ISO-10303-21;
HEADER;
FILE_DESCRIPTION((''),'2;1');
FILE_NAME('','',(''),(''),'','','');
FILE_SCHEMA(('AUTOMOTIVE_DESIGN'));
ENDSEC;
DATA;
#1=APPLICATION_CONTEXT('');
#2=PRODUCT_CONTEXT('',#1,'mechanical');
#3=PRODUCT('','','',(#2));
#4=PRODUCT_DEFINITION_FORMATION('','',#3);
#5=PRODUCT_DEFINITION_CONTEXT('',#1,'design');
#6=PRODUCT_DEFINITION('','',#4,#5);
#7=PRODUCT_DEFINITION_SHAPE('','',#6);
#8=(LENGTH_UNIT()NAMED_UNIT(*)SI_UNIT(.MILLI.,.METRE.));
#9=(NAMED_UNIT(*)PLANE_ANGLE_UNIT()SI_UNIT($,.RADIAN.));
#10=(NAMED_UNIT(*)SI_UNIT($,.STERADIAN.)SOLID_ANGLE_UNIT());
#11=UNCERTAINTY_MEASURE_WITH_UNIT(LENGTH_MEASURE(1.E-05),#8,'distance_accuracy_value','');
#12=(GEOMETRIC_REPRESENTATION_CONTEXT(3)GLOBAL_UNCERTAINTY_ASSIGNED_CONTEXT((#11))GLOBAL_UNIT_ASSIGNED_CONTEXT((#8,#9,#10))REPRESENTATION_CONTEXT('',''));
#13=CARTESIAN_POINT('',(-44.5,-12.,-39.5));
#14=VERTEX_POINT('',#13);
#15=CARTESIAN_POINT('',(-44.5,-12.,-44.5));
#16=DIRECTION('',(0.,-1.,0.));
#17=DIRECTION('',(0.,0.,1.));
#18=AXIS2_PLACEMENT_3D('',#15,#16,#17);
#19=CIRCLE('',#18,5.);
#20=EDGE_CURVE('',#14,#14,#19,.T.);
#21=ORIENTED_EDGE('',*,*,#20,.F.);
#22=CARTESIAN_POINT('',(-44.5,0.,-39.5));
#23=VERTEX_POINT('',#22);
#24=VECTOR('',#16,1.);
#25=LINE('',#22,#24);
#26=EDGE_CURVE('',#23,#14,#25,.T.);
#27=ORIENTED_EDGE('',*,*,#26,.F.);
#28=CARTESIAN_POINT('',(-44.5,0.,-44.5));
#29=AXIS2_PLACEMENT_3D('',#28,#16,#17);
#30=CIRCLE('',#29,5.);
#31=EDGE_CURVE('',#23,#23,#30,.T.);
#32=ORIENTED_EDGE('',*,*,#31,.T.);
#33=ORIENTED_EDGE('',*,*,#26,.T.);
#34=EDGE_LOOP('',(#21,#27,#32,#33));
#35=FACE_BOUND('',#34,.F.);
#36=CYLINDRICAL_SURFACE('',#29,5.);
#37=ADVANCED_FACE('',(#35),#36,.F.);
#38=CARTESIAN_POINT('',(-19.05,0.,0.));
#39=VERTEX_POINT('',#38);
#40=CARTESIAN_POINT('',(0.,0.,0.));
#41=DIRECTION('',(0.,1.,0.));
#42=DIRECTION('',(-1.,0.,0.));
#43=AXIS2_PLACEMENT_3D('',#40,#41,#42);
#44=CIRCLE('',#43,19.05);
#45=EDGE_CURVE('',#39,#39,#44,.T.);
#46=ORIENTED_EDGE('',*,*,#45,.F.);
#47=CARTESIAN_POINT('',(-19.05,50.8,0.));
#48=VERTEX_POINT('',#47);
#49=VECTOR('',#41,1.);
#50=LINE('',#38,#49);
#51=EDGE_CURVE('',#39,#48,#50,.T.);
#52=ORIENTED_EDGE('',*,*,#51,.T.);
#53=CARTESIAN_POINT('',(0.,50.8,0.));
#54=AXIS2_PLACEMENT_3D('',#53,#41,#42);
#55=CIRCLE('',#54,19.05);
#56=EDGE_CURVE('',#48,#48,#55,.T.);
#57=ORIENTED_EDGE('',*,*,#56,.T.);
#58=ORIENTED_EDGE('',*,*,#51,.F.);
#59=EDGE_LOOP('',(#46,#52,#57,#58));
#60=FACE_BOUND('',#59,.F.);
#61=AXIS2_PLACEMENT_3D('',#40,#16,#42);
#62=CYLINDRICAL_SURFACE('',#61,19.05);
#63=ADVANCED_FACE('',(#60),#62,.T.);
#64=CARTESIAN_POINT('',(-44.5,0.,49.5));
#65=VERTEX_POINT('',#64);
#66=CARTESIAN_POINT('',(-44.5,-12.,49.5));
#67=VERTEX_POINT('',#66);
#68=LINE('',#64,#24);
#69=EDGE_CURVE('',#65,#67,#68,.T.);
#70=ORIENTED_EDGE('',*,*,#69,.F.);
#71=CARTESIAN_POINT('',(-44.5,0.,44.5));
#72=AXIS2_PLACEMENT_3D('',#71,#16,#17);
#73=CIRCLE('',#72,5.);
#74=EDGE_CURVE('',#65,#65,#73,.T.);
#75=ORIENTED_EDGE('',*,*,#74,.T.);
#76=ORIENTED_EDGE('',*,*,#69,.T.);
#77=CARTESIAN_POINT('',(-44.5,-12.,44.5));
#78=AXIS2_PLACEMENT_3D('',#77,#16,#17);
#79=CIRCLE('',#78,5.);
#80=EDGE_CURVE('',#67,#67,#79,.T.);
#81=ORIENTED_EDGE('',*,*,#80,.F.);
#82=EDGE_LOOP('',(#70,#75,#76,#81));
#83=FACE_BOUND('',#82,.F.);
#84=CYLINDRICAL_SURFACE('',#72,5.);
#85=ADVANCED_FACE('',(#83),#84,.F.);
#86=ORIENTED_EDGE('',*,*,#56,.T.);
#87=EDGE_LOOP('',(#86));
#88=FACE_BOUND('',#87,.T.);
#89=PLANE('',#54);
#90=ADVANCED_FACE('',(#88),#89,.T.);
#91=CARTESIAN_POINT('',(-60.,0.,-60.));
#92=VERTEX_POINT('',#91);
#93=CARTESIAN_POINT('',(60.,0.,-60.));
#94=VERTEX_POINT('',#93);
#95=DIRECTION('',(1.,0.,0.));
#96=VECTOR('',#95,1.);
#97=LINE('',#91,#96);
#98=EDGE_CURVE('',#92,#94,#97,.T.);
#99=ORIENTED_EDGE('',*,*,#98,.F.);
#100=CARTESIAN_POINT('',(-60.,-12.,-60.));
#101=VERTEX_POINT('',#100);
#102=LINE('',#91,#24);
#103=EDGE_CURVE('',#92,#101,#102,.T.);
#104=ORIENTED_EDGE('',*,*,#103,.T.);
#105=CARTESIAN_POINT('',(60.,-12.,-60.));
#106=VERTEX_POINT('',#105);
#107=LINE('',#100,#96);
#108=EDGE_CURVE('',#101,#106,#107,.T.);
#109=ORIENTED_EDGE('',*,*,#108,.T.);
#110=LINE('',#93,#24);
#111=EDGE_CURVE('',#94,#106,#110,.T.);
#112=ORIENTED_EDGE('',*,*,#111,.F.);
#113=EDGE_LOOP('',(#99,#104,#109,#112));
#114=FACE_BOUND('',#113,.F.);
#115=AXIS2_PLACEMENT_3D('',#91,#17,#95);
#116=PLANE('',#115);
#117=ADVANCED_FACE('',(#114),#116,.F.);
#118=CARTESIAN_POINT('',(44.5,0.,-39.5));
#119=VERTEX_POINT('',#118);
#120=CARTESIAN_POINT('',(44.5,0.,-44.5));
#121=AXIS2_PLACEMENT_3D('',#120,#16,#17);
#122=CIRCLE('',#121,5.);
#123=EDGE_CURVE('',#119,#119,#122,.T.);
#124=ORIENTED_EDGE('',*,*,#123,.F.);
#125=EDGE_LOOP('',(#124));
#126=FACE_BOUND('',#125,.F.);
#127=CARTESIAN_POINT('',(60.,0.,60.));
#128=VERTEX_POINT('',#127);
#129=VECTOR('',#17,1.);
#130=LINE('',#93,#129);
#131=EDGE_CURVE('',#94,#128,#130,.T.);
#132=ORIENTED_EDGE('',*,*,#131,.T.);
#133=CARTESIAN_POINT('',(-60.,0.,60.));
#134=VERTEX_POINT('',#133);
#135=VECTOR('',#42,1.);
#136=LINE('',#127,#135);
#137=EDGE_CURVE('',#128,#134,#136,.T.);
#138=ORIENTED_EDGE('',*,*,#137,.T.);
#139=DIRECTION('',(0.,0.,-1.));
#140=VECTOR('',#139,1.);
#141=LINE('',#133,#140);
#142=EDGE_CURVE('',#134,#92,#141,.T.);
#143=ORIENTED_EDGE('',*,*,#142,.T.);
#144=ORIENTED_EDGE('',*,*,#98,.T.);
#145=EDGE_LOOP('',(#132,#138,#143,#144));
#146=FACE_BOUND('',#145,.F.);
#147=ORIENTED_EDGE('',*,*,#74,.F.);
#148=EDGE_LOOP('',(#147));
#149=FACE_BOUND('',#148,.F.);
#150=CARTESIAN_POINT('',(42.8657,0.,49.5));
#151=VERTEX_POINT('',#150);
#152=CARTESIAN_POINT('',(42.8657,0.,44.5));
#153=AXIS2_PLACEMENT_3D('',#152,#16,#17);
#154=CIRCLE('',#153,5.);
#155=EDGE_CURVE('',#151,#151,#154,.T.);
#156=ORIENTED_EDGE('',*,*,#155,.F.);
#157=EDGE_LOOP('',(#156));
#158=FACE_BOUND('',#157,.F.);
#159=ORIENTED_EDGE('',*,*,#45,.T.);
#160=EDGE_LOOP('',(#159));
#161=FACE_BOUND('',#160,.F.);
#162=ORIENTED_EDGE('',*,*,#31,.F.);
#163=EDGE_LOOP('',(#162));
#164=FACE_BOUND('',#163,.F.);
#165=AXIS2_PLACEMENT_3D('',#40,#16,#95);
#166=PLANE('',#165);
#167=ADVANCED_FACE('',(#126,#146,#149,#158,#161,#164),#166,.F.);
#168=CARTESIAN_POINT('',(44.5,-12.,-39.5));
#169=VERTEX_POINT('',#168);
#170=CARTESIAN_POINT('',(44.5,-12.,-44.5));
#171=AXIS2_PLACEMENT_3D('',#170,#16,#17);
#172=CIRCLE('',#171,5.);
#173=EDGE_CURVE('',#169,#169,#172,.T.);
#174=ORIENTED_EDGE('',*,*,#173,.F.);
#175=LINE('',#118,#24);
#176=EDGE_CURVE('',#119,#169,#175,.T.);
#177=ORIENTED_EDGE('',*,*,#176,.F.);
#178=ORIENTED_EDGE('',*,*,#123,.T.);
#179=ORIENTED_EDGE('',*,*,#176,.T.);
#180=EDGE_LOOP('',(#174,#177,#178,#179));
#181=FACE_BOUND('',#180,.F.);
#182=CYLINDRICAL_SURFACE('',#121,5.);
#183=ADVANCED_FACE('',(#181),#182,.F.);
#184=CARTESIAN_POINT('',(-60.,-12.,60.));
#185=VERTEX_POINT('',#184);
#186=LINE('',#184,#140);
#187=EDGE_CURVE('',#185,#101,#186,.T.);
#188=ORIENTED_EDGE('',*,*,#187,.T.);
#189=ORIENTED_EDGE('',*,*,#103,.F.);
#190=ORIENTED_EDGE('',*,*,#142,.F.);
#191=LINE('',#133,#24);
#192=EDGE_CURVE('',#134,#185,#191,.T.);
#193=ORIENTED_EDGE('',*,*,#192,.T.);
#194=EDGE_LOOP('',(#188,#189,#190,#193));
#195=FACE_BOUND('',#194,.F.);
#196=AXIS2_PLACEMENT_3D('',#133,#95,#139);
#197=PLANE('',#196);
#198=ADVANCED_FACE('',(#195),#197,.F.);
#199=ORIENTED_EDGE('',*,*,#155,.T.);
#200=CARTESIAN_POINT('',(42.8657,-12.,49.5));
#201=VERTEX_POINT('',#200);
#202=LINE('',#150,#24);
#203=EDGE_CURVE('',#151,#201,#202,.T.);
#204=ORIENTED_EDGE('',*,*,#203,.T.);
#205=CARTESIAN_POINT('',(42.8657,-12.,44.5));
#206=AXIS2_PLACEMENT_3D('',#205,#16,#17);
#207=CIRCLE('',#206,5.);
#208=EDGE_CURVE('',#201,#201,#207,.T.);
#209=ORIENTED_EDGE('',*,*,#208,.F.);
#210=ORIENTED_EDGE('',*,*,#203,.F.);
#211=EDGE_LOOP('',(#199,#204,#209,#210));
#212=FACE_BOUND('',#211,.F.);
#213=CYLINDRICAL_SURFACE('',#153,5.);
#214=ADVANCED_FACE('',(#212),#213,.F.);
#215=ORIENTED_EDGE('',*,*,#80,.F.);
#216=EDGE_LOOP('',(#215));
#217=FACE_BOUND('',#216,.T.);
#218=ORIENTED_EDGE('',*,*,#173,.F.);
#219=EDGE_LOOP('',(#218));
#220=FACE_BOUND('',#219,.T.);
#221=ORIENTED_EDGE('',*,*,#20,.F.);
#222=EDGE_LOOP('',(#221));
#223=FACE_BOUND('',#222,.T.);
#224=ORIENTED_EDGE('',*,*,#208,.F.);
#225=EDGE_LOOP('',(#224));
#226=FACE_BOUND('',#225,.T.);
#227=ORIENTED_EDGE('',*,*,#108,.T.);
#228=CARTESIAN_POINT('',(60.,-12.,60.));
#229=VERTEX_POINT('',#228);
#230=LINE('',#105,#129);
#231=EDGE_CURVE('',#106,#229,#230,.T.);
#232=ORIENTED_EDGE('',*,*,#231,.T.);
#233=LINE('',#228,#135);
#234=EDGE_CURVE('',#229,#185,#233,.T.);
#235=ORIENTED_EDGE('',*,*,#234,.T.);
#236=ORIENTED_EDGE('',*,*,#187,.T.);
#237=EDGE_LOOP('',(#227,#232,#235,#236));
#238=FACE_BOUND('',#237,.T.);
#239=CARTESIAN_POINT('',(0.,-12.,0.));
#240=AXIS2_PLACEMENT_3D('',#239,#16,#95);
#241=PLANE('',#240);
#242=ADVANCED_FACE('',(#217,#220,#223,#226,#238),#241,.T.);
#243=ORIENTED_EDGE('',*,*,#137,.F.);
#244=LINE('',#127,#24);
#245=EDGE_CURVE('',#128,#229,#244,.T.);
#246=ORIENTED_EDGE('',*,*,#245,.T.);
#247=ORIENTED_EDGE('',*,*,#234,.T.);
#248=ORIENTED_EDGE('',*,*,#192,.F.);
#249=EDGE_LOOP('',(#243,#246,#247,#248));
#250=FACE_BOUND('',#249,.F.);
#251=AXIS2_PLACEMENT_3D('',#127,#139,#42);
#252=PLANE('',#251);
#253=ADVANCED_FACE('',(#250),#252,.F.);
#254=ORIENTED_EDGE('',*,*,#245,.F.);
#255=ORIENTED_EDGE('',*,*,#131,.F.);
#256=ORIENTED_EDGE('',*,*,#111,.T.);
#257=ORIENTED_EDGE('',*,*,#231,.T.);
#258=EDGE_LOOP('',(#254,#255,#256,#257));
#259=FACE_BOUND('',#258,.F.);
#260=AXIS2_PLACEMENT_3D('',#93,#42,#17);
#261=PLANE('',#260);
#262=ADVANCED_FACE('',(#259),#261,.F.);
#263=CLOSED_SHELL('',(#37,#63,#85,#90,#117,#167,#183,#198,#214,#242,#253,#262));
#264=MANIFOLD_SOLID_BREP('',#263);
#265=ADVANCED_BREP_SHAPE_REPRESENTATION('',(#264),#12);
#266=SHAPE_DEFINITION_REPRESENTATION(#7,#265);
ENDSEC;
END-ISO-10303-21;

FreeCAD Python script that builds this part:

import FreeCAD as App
import Part
import Sketcher

V = App.Vector
Q = App.Units.Quantity

doc = App.newDocument("Part")
body = doc.addObject("PartDesign::Body", "Body")

# Sketch on XZ plane
sketch1 = body.newObject("Sketcher::SketchObject", "Sketch")
sketch1.AttachmentSupport = (doc.getObject("XZ_Plane"), [""])
sketch1.MapMode = "FlatFace"
sketch1.addGeometry(Part.Circle(V(0, 0, 0), V(0, 0, 1), 19), False)
sketch1.addConstraint([
    Sketcher.Constraint("Coincident", 0, 3, -1, 1),
    Sketcher.Constraint("Diameter", 0, Q("1.5 in")),
])
pad1 = body.newObject("PartDesign::Pad", "Pad")
pad1.Profile = sketch1
pad1.Length = Q("2 in")
pad1.Reversed = True

# Sketch on XZ plane
sketch2 = body.newObject("Sketcher::SketchObject", "Sketch001")
sketch2.AttachmentSupport = (doc.getObject("XZ_Plane"), [""])
sketch2.MapMode = "FlatFace"
sketch2.addGeometry([
    Part.LineSegment(V(-60, 60, 0), V(-60, -60, 0)),
    Part.LineSegment(V(-60, -60, 0), V(60, -60, 0)),
    Part.LineSegment(V(60, -60, 0), V(60, 60, 0)),
    Part.LineSegment(V(60, 60, 0), V(-60, 60, 0)),
], False)
sketch2.addConstraint([
    Sketcher.Constraint("Coincident", 0, 2, 1, 1),
    Sketcher.Constraint("Coincident", 1, 2, 2, 1),
    Sketcher.Constraint("Coincident", 2, 2, 3, 1),
    Sketcher.Constraint("Coincident", 3, 2, 0, 1),
    Sketcher.Constraint("Vertical", 0),
    Sketcher.Constraint("Horizontal", 1),
    Sketcher.Constraint("Vertical", 2),
    Sketcher.Constraint("Horizontal", 3),
    Sketcher.Constraint("Symmetric", 0, 2, 2, 2, -1, 1),
    Sketcher.Constraint("Equal", 3, 0),
    Sketcher.Constraint("DistanceX", 1, 1, 1, 2, Q("4.7244 in")),
])
pad2 = body.newObject("PartDesign::Pad", "Pad001")
pad2.Profile = sketch2
pad2.Length = 12

# Sketch on XZ plane
sketch3 = body.newObject("Sketcher::SketchObject", "Sketch002")
sketch3.AttachmentSupport = (doc.getObject("XZ_Plane"), [""])
sketch3.MapMode = "FlatFace"
sketch3.addGeometry([
    Part.Circle(V(-44, -44, 0), V(0, 0, 1), 5),
    Part.Circle(V(44, -44, 0), V(0, 0, 1), 5),
    Part.Circle(V(-44, 44, 0), V(0, 0, 1), 5),
    Part.Circle(V(43, 44, 0), V(0, 0, 1), 5),
], False)
sketch3.addConstraint([
    Sketcher.Constraint("Equal", 0, 1),
    Sketcher.Constraint("Equal", 1, 2),
    Sketcher.Constraint("Equal", 2, 3),
    Sketcher.Constraint("Symmetric", 1, 3, 2, 3, -1, 1),
    Sketcher.Constraint("Symmetric", 0, 3, 1, 3, -2),
    Sketcher.Constraint("Horizontal", 2, 3, 3, 3),
    Sketcher.Constraint("Diameter", 0, Q("0.3937 in")),
    Sketcher.Constraint("DistanceX", 2, 3, 3, 3, Q("3.4396 in")),
    Sketcher.Constraint("DistanceX", 0, 3, -1, 1, Q("44.5 mm")),
    Sketcher.Constraint("DistanceY", 0, 3, -1, 1, Q("44.5 mm")),
])
doc.recompute()
hole = body.newObject("PartDesign::Hole", "Hole")
hole.Profile = sketch3
hole.ThreadType = "None"
hole.Diameter = Q("0.3937008 in")
hole.DepthType = "ThroughAll"
hole.Reversed = True

doc.recompute()
